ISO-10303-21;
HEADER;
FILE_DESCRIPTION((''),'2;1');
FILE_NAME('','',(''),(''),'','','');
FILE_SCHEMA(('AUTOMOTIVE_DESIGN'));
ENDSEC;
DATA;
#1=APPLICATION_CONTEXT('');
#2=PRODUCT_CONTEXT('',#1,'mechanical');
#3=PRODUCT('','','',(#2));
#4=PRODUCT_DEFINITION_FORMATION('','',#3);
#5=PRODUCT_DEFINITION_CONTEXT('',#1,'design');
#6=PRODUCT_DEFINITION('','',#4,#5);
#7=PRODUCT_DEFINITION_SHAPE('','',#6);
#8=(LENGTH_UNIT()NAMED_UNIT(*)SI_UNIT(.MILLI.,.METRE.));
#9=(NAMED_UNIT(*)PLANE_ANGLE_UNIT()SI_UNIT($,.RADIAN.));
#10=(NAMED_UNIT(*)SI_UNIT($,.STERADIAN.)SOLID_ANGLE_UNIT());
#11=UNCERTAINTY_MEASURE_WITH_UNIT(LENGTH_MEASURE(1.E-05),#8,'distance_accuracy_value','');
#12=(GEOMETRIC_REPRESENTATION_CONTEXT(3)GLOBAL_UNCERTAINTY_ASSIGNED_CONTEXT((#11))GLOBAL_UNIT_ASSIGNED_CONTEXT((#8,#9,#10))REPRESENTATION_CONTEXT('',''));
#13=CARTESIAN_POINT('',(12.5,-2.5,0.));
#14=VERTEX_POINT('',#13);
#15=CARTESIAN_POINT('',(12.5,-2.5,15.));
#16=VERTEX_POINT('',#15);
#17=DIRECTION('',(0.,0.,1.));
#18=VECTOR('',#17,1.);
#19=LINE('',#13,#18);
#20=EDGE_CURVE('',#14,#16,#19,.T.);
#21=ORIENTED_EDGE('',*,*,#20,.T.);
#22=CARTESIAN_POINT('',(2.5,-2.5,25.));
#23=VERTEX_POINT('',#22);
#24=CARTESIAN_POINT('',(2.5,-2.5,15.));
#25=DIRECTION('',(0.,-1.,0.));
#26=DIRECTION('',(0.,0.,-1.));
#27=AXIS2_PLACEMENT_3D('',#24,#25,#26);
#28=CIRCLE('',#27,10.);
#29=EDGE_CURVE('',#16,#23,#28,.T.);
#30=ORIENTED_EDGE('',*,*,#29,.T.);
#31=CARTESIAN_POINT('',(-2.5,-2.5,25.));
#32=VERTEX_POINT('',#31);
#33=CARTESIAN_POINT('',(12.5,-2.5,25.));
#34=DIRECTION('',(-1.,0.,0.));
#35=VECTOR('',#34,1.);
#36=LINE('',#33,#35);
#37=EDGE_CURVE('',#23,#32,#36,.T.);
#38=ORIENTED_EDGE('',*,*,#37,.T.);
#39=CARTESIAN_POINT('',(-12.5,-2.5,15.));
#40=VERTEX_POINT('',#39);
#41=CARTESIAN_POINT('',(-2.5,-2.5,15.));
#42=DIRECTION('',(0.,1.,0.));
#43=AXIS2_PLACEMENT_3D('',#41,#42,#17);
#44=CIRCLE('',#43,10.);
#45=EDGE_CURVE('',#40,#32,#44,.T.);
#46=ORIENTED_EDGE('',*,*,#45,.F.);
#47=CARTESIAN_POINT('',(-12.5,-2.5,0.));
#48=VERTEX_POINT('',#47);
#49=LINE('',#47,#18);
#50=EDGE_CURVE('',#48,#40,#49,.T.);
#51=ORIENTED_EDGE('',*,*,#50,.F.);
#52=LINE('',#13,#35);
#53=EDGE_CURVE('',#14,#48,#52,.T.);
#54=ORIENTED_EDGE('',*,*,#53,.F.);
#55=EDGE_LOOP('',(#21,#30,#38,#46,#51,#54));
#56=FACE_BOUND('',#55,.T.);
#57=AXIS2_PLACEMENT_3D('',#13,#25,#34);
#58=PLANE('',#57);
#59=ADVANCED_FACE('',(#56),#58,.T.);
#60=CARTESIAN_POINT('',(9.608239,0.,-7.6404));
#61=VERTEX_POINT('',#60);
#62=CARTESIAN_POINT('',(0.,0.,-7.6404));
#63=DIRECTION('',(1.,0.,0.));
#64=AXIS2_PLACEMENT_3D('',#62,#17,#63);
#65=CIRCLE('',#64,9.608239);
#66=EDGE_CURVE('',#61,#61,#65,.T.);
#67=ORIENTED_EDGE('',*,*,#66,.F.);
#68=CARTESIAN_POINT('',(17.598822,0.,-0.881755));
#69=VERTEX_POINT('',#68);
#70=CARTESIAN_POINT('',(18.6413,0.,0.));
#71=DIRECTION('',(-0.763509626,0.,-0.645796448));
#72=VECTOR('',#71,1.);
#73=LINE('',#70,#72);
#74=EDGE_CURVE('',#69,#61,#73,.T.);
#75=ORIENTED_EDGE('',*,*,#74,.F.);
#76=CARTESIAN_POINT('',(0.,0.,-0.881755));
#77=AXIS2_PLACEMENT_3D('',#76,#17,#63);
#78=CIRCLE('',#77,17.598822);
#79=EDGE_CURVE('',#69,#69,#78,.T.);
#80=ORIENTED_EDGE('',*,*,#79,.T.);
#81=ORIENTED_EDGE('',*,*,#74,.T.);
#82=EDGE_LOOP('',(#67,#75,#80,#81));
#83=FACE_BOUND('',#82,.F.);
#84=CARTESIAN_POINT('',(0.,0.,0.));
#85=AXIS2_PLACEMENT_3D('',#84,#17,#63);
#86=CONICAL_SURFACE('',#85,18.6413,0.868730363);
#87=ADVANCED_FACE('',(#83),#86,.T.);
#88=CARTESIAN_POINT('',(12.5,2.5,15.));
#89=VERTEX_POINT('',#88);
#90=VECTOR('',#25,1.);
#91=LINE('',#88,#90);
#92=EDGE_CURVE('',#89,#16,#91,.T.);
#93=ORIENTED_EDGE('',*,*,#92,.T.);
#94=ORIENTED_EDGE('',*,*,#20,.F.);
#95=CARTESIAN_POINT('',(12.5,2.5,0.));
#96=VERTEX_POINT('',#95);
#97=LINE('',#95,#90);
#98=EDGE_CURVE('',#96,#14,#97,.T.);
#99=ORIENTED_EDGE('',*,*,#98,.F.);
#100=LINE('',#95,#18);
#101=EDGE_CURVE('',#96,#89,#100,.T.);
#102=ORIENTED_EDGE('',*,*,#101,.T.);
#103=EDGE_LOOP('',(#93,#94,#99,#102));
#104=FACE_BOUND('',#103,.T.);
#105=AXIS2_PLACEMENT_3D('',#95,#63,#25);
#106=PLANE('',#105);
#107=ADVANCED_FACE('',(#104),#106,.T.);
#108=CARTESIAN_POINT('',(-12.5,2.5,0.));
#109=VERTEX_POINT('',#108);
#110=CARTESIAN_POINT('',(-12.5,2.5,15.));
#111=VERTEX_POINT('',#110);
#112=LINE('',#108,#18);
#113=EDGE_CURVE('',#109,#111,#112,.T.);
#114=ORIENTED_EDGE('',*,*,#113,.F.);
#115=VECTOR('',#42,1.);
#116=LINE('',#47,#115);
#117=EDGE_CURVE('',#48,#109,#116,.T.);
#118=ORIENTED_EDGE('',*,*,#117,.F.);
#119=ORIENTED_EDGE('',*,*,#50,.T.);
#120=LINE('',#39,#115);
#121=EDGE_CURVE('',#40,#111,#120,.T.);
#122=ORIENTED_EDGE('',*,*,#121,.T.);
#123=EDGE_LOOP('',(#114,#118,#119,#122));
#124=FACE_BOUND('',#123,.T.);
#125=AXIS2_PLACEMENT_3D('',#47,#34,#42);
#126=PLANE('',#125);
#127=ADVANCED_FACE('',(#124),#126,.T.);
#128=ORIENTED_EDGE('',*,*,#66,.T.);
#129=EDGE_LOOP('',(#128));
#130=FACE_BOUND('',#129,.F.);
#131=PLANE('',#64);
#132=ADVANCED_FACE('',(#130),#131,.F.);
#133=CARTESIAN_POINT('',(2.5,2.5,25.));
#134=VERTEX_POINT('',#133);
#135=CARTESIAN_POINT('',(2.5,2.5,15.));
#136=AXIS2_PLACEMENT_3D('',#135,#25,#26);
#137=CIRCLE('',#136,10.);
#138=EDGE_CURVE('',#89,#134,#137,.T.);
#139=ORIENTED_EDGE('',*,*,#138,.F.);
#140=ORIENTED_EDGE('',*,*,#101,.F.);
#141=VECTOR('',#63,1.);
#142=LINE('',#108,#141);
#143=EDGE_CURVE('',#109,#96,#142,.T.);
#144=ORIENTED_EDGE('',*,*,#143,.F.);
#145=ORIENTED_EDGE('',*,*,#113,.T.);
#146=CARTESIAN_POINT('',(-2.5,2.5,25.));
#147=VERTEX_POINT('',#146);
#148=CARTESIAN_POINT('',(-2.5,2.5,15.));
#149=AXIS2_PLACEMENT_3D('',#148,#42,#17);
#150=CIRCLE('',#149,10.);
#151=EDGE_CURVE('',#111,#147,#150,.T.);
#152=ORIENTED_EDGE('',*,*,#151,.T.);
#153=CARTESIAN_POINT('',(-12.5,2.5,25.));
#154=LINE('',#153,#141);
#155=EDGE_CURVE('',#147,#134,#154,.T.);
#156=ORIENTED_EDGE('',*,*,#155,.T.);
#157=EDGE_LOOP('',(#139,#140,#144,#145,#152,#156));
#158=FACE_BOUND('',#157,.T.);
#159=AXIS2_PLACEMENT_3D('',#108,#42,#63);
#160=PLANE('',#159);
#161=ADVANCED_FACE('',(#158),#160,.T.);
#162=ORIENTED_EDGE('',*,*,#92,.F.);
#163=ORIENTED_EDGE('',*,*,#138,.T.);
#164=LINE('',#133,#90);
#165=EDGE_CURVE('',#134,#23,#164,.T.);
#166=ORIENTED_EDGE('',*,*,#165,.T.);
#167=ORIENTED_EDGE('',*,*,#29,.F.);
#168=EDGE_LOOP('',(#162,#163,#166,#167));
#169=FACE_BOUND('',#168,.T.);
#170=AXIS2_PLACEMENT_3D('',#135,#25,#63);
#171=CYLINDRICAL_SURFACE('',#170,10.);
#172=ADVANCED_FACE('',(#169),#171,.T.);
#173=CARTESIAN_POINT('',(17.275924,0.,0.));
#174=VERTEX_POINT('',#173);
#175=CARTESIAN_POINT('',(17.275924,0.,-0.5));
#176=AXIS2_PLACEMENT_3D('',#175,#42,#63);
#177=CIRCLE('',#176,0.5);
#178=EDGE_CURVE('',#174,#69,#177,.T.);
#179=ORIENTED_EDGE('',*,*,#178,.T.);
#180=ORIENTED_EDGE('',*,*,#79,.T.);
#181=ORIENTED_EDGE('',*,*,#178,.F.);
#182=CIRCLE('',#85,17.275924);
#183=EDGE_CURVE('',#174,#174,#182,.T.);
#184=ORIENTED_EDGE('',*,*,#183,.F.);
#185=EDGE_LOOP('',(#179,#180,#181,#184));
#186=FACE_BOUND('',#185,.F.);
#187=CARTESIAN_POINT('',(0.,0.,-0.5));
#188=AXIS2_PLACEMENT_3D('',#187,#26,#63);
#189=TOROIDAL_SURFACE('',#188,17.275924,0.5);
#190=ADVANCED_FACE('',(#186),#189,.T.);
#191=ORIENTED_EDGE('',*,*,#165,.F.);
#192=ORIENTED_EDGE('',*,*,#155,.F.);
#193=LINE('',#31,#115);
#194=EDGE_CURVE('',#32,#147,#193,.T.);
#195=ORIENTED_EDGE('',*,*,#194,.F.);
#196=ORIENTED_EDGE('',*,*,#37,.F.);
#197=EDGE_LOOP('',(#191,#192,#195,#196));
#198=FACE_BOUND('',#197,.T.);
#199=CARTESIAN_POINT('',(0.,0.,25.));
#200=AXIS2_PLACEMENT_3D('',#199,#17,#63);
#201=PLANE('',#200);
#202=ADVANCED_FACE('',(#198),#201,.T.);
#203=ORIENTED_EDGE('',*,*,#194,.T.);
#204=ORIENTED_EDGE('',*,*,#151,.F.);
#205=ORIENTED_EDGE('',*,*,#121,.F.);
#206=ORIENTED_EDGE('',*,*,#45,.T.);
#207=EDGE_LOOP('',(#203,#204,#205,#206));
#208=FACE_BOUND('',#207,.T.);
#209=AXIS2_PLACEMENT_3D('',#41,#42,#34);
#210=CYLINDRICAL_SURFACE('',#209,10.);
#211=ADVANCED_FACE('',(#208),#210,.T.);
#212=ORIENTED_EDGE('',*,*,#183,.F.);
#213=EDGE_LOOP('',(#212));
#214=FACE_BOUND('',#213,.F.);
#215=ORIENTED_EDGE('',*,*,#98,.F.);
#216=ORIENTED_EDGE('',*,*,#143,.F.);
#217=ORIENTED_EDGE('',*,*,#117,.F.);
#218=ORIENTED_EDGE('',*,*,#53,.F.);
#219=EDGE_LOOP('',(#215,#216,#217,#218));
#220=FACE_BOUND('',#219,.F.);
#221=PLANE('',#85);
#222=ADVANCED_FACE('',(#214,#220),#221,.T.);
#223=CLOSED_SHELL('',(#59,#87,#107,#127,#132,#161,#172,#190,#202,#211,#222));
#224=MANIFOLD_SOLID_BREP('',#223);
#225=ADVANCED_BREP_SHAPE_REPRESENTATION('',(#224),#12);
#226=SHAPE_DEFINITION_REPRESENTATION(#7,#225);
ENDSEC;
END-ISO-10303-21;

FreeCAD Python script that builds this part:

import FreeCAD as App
import Part
import Sketcher

V = App.Vector
Q = App.Units.Quantity


def edges_at(feature, points):
    """Names of the edges that pass closest to the given points."""
    edges = feature.Shape.Edges
    near = lambda p: min(range(len(edges)), key=lambda i: edges[i].distToShape(Part.Vertex(*p))[0])
    return sorted({f"Edge{near(p) + 1}" for p in points})


def add_polygon(sketch, points):
    """Adds a closed chain of lines whose ends are joined by coincident constraints."""
    first, n = sketch.GeometryCount, len(points)
    for a, b in zip(points, points[1:] + points[:1]):
        sketch.addGeometry(Part.LineSegment(App.Vector(*a, 0), App.Vector(*b, 0)), False)
    for i in range(n):
        sketch.addConstraint(Sketcher.Constraint("Coincident", first + i, 2, first + (i + 1) % n, 1))

doc = App.newDocument("Part")
body = doc.addObject("PartDesign::Body", "Body")

# Sketch on XZ plane
sketch1 = doc.addObject("Sketcher::SketchObject", "Sketch")
body.addObject(sketch1)
sketch1.AttachmentSupport = (doc.XZ_Plane, [""])
sketch1.MapMode = "FlatFace"
add_polygon(sketch1, [(0, 0), (19, 0), (10, -8), (0, -8)])  # lines 0-3
sketch1.addConstraint([
    Sketcher.Constraint("Horizontal", 0),
    Sketcher.Constraint("Horizontal", 2),
    Sketcher.Constraint("Vertical", 3),
    Sketcher.Constraint("Coincident", 3, 2, -1, 1),
    Sketcher.Constraint("Distance", 1, Q("11.831 mm")),
    Sketcher.Constraint("DistanceX", 0, 1, 0, 2, Q("18.6413 mm")),
    Sketcher.Constraint("DistanceX", 2, 2, 2, 1, Q("9.6082 mm")),
])
revolution = doc.addObject("PartDesign::Revolution", "Revolution")
body.addObject(revolution)
revolution.Profile = sketch1
revolution.ReferenceAxis = (sketch1, ["V_Axis"])
revolution.Angle = 360

# Sketch on XY plane
sketch2 = doc.addObject("Sketcher::SketchObject", "Sketch001")
body.addObject(sketch2)
sketch2.AttachmentSupport = (doc.XY_Plane, [""])
sketch2.MapMode = "FlatFace"
add_polygon(sketch2, [(12, 2), (-12, 2), (-12, -2), (12, -2)])  # lines 0-3
sketch2.addConstraint([
    Sketcher.Constraint("Horizontal", 0),
    Sketcher.Constraint("Vertical", 1),
    Sketcher.Constraint("Horizontal", 2),
    Sketcher.Constraint("Vertical", 3),
    Sketcher.Constraint("Symmetric", 0, 2, 2, 2, -1, 1),
    Sketcher.Constraint("DistanceX", 0, 2, 0, 1, Q("25 mm")),
    Sketcher.Constraint("DistanceY", 1, 2, 1, 1, Q("5 mm")),
])
pad1 = doc.addObject("PartDesign::Pad", "Pad")
body.addObject(pad1)
pad1.Profile = sketch2
pad1.Length = 25
doc.recompute()

fillet = doc.addObject("PartDesign::Fillet", "Fillet")
body.addObject(fillet)
fillet.Base = (pad1, edges_at(pad1, [(-12.5, 0, 25), (12.5, 0, 25)]))
fillet.Radius = 10
doc.recompute()

fillet2 = doc.addObject("PartDesign::Fillet", "Fillet001")
body.addObject(fillet2)
fillet2.Base = (fillet, edges_at(fillet, [(-18.641, 0, 0)]))
fillet2.Radius = 0.5

doc.recompute()
